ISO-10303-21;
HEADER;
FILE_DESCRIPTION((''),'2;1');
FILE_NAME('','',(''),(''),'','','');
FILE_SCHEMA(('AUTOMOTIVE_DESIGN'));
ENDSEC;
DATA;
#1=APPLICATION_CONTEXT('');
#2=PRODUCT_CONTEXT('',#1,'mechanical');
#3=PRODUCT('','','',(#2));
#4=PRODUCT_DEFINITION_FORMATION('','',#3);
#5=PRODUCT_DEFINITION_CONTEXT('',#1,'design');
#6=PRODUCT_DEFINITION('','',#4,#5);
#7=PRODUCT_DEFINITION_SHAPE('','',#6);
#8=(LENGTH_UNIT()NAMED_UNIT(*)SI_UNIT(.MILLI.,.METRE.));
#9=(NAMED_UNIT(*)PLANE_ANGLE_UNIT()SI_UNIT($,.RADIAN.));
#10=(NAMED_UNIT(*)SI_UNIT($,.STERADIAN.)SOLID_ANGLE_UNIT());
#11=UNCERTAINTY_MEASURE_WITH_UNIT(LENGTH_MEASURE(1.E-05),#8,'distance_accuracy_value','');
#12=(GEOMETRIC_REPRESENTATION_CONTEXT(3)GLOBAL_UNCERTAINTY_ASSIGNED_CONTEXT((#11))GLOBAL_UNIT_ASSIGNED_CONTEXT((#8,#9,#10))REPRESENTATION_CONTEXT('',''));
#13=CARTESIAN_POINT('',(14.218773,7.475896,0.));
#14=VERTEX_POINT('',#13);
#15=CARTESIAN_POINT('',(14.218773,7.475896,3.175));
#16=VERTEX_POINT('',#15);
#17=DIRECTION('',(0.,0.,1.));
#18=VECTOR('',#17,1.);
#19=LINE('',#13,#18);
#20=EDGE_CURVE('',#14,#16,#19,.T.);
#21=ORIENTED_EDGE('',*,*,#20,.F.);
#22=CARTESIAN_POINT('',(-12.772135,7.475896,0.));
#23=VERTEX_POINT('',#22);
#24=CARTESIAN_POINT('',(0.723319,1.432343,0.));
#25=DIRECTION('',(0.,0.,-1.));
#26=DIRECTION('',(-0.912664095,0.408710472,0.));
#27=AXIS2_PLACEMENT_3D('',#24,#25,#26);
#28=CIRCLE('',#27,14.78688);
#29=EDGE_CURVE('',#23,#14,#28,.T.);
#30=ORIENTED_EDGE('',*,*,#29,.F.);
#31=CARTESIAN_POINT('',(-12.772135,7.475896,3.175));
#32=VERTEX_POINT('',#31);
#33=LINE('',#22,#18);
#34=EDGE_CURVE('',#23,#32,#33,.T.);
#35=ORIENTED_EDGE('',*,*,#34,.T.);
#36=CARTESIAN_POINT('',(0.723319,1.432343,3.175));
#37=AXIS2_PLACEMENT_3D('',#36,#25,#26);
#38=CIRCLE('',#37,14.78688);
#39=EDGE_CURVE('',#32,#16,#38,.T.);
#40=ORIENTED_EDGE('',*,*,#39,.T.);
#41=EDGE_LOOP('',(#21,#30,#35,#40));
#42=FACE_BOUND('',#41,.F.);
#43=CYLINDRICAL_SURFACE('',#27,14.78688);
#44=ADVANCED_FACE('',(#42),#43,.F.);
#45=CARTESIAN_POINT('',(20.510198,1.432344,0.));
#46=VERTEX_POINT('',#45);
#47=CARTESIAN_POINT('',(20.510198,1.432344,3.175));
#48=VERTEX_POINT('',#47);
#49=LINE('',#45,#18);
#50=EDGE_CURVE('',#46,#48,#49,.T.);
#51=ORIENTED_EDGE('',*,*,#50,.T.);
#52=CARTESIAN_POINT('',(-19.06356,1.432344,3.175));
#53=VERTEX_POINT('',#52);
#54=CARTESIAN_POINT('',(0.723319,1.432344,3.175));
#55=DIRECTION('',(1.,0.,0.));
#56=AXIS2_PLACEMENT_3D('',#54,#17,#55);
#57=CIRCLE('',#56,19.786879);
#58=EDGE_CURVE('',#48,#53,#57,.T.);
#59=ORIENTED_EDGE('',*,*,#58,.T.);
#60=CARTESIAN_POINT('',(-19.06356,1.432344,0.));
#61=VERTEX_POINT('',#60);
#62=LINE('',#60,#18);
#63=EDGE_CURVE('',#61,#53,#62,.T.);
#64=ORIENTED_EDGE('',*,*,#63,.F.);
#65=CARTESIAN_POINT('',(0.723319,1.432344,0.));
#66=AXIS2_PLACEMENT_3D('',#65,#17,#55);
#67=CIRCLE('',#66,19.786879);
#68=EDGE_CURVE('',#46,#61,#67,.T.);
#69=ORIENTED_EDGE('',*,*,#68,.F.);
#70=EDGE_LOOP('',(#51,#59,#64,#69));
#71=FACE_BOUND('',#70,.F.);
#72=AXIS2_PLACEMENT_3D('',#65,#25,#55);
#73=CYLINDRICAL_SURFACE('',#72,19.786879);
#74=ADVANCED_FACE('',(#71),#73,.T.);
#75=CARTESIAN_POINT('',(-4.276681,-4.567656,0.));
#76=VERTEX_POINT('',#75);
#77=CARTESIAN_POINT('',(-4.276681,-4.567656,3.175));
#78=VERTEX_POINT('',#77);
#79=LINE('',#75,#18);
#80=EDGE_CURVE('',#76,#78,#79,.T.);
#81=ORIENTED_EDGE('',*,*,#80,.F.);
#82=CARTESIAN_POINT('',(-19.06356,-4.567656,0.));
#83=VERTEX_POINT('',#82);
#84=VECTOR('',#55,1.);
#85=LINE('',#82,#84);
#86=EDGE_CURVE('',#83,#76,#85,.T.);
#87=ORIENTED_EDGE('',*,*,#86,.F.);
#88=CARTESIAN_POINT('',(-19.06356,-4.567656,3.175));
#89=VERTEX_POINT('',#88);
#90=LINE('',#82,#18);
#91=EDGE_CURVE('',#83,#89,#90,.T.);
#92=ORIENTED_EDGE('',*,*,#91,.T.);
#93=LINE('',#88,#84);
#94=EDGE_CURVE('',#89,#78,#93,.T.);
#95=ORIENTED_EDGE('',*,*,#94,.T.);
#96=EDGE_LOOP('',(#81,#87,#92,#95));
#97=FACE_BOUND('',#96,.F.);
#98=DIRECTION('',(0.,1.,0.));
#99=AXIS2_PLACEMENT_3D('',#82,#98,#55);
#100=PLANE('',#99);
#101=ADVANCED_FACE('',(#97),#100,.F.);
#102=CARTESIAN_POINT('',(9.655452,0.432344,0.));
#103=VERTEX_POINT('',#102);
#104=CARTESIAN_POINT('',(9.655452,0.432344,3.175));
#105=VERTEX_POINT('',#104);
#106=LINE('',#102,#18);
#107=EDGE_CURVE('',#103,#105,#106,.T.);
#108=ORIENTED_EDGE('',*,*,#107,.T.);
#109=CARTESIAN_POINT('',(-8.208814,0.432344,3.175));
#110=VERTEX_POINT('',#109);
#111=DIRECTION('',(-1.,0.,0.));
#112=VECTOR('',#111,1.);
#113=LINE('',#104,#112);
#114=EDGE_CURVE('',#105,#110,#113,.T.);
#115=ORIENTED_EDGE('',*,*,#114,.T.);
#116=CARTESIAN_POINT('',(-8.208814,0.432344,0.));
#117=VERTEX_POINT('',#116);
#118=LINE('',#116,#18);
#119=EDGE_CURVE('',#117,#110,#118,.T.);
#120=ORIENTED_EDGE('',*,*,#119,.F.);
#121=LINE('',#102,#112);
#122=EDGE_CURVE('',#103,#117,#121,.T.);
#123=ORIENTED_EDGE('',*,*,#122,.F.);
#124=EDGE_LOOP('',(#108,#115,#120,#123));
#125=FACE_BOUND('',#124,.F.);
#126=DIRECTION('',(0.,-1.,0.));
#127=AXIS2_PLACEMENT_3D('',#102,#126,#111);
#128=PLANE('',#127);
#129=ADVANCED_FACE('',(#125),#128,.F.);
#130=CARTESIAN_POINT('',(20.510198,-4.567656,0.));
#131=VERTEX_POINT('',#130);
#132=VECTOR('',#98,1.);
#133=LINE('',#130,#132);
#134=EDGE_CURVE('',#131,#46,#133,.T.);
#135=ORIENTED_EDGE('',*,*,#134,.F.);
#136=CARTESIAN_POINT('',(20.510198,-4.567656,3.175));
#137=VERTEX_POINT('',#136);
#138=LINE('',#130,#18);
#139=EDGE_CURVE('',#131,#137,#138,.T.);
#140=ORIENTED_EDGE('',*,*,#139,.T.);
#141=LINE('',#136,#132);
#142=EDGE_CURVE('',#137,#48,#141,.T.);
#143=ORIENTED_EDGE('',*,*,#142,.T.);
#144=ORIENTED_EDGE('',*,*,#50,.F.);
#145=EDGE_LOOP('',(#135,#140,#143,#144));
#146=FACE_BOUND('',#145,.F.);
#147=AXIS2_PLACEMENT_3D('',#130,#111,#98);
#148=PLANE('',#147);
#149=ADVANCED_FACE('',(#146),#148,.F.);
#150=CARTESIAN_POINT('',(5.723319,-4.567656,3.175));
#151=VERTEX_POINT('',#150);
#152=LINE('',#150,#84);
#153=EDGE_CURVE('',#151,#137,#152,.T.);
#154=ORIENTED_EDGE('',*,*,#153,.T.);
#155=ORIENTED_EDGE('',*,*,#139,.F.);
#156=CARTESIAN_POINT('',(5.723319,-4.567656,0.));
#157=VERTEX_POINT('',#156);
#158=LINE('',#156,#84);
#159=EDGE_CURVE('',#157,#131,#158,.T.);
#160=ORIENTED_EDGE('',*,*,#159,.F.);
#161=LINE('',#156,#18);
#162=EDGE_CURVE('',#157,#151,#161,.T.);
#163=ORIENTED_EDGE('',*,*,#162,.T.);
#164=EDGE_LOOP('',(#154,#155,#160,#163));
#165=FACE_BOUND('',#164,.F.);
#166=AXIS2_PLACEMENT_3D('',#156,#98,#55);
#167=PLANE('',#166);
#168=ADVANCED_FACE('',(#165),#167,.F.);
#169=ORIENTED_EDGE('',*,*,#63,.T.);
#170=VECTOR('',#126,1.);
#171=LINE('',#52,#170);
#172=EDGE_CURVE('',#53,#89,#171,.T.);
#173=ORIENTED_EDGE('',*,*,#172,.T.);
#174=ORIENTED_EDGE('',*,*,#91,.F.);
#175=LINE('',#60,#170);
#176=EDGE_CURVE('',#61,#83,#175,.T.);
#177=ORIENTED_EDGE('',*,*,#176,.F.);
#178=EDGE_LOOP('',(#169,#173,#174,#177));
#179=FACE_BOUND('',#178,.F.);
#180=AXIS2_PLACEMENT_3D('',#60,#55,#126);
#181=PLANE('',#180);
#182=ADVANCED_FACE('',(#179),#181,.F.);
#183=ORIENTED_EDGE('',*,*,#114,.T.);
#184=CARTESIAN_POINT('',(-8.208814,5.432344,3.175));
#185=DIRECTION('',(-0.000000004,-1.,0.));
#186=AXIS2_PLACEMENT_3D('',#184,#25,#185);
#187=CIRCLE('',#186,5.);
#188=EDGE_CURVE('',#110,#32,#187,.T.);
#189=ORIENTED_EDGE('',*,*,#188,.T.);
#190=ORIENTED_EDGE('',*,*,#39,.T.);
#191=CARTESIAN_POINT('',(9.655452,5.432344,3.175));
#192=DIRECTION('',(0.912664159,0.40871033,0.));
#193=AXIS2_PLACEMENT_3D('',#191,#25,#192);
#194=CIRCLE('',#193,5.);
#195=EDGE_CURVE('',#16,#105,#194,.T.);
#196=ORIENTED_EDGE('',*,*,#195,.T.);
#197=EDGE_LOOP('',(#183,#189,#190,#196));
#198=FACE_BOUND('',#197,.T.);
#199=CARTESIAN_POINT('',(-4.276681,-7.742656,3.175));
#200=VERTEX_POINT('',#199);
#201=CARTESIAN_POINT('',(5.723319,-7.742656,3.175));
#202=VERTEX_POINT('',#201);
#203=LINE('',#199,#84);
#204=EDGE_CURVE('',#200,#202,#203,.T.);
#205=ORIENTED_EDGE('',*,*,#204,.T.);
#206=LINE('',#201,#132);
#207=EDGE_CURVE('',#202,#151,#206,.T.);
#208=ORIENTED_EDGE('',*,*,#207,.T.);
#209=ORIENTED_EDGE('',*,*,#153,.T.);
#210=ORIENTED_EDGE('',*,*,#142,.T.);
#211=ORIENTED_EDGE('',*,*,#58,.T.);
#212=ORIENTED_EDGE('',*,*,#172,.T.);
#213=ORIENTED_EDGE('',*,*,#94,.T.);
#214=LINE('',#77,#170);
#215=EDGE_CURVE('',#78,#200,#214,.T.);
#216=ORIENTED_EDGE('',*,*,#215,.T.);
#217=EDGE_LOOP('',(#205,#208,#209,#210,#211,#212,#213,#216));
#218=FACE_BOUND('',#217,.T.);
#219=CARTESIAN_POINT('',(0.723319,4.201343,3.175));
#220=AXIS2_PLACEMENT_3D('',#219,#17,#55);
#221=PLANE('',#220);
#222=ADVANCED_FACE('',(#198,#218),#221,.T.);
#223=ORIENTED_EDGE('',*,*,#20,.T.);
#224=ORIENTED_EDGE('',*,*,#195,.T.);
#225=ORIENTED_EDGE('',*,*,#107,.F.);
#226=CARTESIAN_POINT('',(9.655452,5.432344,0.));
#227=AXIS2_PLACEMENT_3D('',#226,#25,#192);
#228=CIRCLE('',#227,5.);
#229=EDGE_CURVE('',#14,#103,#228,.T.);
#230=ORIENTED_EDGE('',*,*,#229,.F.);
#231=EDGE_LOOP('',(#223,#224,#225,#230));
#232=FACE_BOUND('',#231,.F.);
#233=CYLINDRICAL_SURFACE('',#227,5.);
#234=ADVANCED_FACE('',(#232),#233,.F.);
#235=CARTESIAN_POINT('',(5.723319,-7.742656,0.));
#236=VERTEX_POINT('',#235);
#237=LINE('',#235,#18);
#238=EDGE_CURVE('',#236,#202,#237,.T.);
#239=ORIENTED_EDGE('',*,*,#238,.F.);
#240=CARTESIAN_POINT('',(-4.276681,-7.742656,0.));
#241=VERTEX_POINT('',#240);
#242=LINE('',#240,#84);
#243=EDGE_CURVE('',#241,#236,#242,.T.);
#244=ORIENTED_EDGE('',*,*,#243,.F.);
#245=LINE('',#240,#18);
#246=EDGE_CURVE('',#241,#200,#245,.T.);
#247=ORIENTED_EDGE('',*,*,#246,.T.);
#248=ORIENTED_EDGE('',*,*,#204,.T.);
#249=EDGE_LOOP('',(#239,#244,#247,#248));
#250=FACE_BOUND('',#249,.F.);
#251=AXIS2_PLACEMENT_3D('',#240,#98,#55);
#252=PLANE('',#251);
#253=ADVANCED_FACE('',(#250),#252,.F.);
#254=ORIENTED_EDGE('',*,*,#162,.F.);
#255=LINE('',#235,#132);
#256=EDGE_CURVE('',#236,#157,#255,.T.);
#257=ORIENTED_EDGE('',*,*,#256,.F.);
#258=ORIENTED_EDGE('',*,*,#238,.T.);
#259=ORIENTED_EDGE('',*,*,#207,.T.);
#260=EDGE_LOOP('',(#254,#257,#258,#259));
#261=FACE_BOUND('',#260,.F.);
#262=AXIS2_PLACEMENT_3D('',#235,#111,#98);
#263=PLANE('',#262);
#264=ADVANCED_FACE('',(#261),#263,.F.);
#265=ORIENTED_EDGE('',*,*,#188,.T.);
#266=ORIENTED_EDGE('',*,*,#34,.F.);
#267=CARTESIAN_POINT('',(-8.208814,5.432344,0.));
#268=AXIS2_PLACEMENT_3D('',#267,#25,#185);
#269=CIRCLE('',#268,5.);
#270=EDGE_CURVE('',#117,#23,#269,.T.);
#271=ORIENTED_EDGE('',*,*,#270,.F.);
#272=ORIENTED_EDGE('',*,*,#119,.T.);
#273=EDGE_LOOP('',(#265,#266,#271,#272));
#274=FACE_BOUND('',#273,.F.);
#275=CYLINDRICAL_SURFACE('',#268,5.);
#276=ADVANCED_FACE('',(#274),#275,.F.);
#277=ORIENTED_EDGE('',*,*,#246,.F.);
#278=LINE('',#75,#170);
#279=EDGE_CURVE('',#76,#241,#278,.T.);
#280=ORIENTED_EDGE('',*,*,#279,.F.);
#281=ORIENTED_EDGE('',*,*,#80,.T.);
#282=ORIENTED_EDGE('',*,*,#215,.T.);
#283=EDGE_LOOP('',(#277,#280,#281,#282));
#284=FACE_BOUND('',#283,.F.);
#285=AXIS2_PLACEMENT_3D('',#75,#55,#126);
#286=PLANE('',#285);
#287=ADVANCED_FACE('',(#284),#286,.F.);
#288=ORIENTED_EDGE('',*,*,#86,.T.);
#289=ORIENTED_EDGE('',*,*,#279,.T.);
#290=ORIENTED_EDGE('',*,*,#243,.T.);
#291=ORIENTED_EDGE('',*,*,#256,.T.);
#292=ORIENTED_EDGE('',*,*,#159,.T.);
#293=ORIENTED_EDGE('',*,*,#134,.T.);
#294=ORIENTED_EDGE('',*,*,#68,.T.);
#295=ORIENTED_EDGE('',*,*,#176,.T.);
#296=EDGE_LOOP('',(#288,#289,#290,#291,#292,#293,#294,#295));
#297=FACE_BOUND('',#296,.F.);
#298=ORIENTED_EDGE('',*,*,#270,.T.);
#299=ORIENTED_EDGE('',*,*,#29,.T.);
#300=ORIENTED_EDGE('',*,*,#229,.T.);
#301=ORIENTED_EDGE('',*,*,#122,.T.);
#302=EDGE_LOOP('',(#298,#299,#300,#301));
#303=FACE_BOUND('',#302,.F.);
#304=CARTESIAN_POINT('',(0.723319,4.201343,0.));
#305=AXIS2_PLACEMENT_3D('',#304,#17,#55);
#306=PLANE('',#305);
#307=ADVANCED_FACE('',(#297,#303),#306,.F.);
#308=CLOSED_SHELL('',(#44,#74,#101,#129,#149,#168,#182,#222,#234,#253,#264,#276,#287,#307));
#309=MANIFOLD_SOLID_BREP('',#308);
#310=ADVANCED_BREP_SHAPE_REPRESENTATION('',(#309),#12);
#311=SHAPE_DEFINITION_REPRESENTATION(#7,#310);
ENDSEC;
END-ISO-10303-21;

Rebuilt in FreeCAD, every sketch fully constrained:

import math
import FreeCAD as App
import Part
import Sketcher
Q = App.Units.Quantity

doc = App.newDocument("Part")
body = doc.addObject("PartDesign::Body", "Body")

sketch1 = body.newObject("Sketcher::SketchObject", "Sketch")
sketch1.AttachmentSupport = (doc.getObject("XY_Plane"), [""])
sketch1.MapMode = "FlatFace"
sketch1.addGeometry([
    Part.LineSegment(App.Vector(-19.06356, 1.432344, 0), App.Vector(-19.06356, -4.567656, 0)),
    Part.LineSegment(App.Vector(-19.06356, -4.567656, 0), App.Vector(-4.276681, -4.567656, 0)),
    Part.LineSegment(App.Vector(-4.276681, -4.567656, 0), App.Vector(-4.276681, -7.742656, 0)),
    Part.LineSegment(App.Vector(-4.276681, -7.742656, 0), App.Vector(5.723319, -7.742656, 0)),
    Part.LineSegment(App.Vector(5.723319, -7.742656, 0), App.Vector(5.723319, -4.567656, 0)),
    Part.LineSegment(App.Vector(5.723319, -4.567656, 0), App.Vector(20.510198, -4.567656, 0)),
    Part.LineSegment(App.Vector(20.510198, -4.567656, 0), App.Vector(20.510198, 1.432344, 0)),
    Part.ArcOfCircle(Part.Circle(App.Vector(0.723319, 1.432344, 0), App.Vector(0, 0, 1), 19.786879), math.radians(0), math.radians(180)),
    Part.ArcOfCircle(Part.Circle(App.Vector(9.655452, 5.432344, 0), App.Vector(0, 0, 1), 5), math.radians(-90), math.radians(24.123845)),
    Part.LineSegment(App.Vector(9.655452, 0.432344, 0), App.Vector(-8.208814, 0.432344, 0)),
    Part.ArcOfCircle(Part.Circle(App.Vector(-8.208814, 5.432344, 0), App.Vector(0, 0, 1), 5), math.radians(155.876155), math.radians(270)),
    Part.ArcOfCircle(Part.Circle(App.Vector(0.723319, 1.432343, 0), App.Vector(0, 0, 1), 14.78688), math.radians(24.123854), math.radians(155.876146)),
], False)
sketch1.addConstraint([
    Sketcher.Constraint("Coincident", 0, 2, 1, 1),
    Sketcher.Constraint("Coincident", 1, 2, 2, 1),
    Sketcher.Constraint("Coincident", 2, 2, 3, 1),
    Sketcher.Constraint("Coincident", 3, 2, 4, 1),
    Sketcher.Constraint("Coincident", 4, 2, 5, 1),
    Sketcher.Constraint("Coincident", 5, 2, 6, 1),
    Sketcher.Constraint("Tangent", 6, 2, 7, 1),
    Sketcher.Constraint("Tangent", 7, 2, 0, 1),
    Sketcher.Constraint("Tangent", 8, 1, 9, 1),
    Sketcher.Constraint("Tangent", 9, 2, 10, 2),
    Sketcher.Constraint("Tangent", 10, 1, 11, 2),
    Sketcher.Constraint("Tangent", 11, 1, 8, 2),
    Sketcher.Constraint("Vertical", 0),
    Sketcher.Constraint("Horizontal", 1),
    Sketcher.Constraint("Vertical", 2),
    Sketcher.Constraint("Horizontal", 3),
    Sketcher.Constraint("Vertical", 4),
    Sketcher.Constraint("Horizontal", 5),
    Sketcher.Constraint("Vertical", 6),
    Sketcher.Constraint("Horizontal", 9),
    Sketcher.Constraint("Coincident", 11, 3, 7, 3),
    Sketcher.Constraint("Equal", 8, 10),
    Sketcher.Constraint("Horizontal", 1, 2, 4, 2),
    Sketcher.Constraint("Equal", 1, 5),
    Sketcher.Constraint("Radius", 8, Q("5 mm")),
    Sketcher.Constraint("DistanceX", 3, 1, 3, 2, Q("10 mm")),
    Sketcher.Constraint("DistanceY", 0, 2, 0, 1, Q("6 mm")),
    Sketcher.Constraint("DistanceY", 7, 3, 8, 3, Q("4 mm")),
    Sketcher.Constraint("DistanceY", 2, 2, 2, 1, Q("3.175 mm")),
    Sketcher.Constraint("Radius", 7, Q("19.786879 mm")),
    Sketcher.Constraint("Radius", 11, Q("14.78688 mm")),
    Sketcher.Constraint("DistanceX", -1, 1, 7, 3, Q("0.723319 mm")),
    Sketcher.Constraint("DistanceY", -1, 1, 7, 3, Q("1.432344 mm")),
])
pad1 = body.newObject("PartDesign::Pad", "Pad")
pad1.Profile = sketch1
pad1.Length = 3.175

doc.recompute()
